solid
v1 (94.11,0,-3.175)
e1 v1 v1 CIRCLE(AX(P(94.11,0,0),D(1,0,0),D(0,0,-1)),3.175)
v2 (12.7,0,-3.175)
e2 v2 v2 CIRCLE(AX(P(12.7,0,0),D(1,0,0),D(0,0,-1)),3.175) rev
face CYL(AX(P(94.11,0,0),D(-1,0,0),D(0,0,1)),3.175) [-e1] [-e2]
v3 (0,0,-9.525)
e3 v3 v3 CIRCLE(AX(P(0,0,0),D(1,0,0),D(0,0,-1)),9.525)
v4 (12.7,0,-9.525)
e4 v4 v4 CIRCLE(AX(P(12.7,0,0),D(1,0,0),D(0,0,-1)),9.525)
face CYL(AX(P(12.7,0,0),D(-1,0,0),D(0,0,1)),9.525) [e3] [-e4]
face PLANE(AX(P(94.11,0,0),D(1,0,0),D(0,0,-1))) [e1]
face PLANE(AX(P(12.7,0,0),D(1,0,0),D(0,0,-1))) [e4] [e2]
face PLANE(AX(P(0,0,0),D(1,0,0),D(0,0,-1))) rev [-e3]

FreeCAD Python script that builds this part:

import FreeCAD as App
import Part
import Sketcher
Q = App.Units.Quantity

doc = App.newDocument("Part")
params = doc.addObject("Spreadsheet::Sheet", "Params")
for row, (alias, value) in enumerate([
    ("sketch1_diameter", "0.75 in"),
    ("pad1_length", "0.5 in"),
    ("sketch2_diameter", "0.25 in"),
    ("pad2_length", "94.11 mm"),
], start=1):
    params.set(f"A{row}", alias)
    params.set(f"B{row}", "=" + value)
    params.setAlias(f"B{row}", alias)

body = doc.addObject("PartDesign::Body", "Body")

# Sketch on YZ plane
sketch1 = doc.addObject("Sketcher::SketchObject", "Sketch")
body.addObject(sketch1)
sketch1.AttachmentSupport = (doc.YZ_Plane, [""])
sketch1.MapMode = "FlatFace"
sketch1.addGeometry(Part.Circle(App.Vector(0, 0, 0), App.Vector(0, 0, 1), 9.525), False)
sketch1.addConstraint(Sketcher.Constraint("Coincident", 0, 3, -1, 1))
sketch1.addConstraint(Sketcher.Constraint("Diameter", 0, Q("0.75 in")))
sketch1.setExpression("Constraints[1]", "Params.sketch1_diameter")
pad1 = doc.addObject("PartDesign::Pad", "Pad")
body.addObject(pad1)
pad1.Profile = sketch1
pad1.setExpression("Length", "Params.pad1_length")

# Sketch on YZ plane
sketch2 = doc.addObject("Sketcher::SketchObject", "Sketch001")
body.addObject(sketch2)
sketch2.AttachmentSupport = (doc.YZ_Plane, [""])
sketch2.MapMode = "FlatFace"
sketch2.addGeometry(Part.Circle(App.Vector(0, 0, 0), App.Vector(0, 0, 1), 3.175), False)
sketch2.addConstraint(Sketcher.Constraint("Coincident", 0, 3, -1, 1))
sketch2.addConstraint(Sketcher.Constraint("Diameter", 0, Q("0.25 in")))
sketch2.setExpression("Constraints[1]", "Params.sketch2_diameter")
pad2 = doc.addObject("PartDesign::Pad", "Pad001")
body.addObject(pad2)
pad2.Profile = sketch2
pad2.setExpression("Length", "Params.pad2_length")

doc.recompute()
